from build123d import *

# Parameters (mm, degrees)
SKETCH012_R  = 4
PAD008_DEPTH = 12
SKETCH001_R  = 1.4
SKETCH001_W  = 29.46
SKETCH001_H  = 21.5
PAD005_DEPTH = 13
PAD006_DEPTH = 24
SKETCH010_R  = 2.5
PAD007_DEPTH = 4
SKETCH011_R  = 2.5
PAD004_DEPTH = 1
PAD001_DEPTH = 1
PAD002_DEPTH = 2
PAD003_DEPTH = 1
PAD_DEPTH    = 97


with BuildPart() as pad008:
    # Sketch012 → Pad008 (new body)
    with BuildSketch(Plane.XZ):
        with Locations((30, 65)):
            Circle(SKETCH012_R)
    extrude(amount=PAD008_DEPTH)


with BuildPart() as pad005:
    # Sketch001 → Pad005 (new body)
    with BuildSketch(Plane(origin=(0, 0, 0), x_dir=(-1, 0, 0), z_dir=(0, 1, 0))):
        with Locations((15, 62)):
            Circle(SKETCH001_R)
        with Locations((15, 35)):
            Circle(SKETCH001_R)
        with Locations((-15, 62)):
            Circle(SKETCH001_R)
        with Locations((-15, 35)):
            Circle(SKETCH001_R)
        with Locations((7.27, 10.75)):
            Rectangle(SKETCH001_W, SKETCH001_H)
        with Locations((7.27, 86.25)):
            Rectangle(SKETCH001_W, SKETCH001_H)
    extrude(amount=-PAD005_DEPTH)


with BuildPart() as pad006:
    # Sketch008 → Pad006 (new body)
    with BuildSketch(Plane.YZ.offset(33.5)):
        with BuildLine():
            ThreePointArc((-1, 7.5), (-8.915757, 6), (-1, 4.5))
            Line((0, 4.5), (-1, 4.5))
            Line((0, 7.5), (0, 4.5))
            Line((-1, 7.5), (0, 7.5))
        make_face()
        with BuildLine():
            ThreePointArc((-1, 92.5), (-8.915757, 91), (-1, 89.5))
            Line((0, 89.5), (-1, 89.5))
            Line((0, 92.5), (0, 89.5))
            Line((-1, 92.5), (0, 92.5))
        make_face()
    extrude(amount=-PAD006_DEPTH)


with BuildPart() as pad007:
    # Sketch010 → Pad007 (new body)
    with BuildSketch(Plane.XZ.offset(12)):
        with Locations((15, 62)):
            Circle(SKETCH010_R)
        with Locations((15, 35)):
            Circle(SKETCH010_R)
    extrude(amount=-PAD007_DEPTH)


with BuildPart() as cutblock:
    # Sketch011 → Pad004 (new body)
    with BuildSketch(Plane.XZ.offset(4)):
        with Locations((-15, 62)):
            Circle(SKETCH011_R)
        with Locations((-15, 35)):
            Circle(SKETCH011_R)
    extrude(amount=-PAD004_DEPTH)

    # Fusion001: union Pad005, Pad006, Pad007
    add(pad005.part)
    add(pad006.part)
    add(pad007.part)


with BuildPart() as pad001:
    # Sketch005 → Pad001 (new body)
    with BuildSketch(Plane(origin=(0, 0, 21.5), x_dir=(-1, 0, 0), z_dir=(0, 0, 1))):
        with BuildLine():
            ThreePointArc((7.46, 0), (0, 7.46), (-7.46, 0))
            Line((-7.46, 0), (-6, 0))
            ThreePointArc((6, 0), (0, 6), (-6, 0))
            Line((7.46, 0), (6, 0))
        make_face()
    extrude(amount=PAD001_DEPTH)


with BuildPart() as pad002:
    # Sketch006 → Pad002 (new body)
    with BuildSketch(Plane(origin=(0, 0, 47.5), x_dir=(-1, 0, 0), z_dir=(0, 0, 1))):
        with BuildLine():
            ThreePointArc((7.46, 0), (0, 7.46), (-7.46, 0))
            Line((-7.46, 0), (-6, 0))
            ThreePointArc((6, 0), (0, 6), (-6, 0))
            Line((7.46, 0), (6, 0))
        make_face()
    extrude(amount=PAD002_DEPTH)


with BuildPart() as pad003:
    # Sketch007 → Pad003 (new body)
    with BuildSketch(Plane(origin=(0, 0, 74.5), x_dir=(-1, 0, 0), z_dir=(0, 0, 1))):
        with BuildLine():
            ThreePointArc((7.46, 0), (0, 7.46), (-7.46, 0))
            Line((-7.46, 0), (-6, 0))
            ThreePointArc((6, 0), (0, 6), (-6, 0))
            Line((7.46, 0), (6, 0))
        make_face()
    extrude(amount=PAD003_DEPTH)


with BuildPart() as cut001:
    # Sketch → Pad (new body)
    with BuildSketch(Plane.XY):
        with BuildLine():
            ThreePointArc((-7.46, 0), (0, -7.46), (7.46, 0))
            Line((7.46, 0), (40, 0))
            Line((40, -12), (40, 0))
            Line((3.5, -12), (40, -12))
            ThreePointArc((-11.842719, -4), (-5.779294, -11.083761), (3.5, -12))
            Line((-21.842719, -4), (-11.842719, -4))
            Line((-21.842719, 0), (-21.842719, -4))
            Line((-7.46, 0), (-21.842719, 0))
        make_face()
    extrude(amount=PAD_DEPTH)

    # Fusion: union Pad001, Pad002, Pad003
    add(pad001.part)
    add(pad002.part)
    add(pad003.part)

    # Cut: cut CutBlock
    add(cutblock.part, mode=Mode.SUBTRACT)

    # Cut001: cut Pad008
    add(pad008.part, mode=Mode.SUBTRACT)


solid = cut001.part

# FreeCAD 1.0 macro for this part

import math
import FreeCAD as App
import Part
import Sketcher
from FreeCAD import Vector

doc = App.newDocument("Part")
body = doc.addObject("PartDesign::Body", "Body")

sketch1 = body.newObject("Sketcher::SketchObject", "Sketch")
sketch1.AttachmentSupport = (doc.getObject("XZ_Plane"), [""])
sketch1.MapMode = "FlatFace"
sketch1.addGeometry(Part.Circle(Vector(30, 65, 0), Vector(0, 0, 1), 4), False)
sketch1.addConstraint([
    Sketcher.Constraint("Diameter", 0, 8.0),
    Sketcher.Constraint("DistanceX", -1, 1, 0, 3, 30.0),
    Sketcher.Constraint("DistanceY", -1, 1, 0, 3, 65.0),
])
pad1 = body.newObject("PartDesign::Pad", "Pad")
pad1.Profile = sketch1
pad1.Length = 12
body2 = doc.addObject("PartDesign::Body", "Body001")
body2.AllowCompound = True

sketch2 = body2.newObject("Sketcher::SketchObject", "Sketch001")
sketch2.AttachmentSupport = (doc.getObject("XZ_Plane001"), [""])
sketch2.MapMode = "FlatFace"
sketch2.addGeometry([
    Part.Circle(Vector(-15, 62, 0), Vector(0, 0, 1), 1.4),
    Part.Circle(Vector(-15, 35, 0), Vector(0, 0, 1), 1.4),
    Part.Circle(Vector(15, 62, 0), Vector(0, 0, 1), 1.4),
    Part.Circle(Vector(15, 35, 0), Vector(0, 0, 1), 1.4),
    Part.LineSegment(Vector(7.5, 21.5, 0), Vector(7.5, 0, 0)),
    Part.LineSegment(Vector(7.5, 0, 0), Vector(-22, 0, 0)),
    Part.LineSegment(Vector(-22, 0, 0), Vector(-22, 21.5, 0)),
    Part.LineSegment(Vector(-22, 21.5, 0), Vector(7.5, 21.5, 0)),
    Part.LineSegment(Vector(7.5, 97, 0), Vector(7.5, 75.5, 0)),
    Part.LineSegment(Vector(7.5, 75.5, 0), Vector(-22, 75.5, 0)),
    Part.LineSegment(Vector(-22, 75.5, 0), Vector(-22, 97, 0)),
    Part.LineSegment(Vector(-22, 97, 0), Vector(7.5, 97, 0)),
], False)
sketch2.addConstraint([
    Sketcher.Constraint("Coincident", 4, 2, 5, 1),
    Sketcher.Constraint("Coincident", 5, 2, 6, 1),
    Sketcher.Constraint("Coincident", 6, 2, 7, 1),
    Sketcher.Constraint("Coincident", 7, 2, 4, 1),
    Sketcher.Constraint("Coincident", 8, 2, 9, 1),
    Sketcher.Constraint("Coincident", 9, 2, 10, 1),
    Sketcher.Constraint("Coincident", 10, 2, 11, 1),
    Sketcher.Constraint("Coincident", 11, 2, 8, 1),
    Sketcher.Constraint("Vertical", 4),
    Sketcher.Constraint("Horizontal", 5),
    Sketcher.Constraint("Vertical", 6),
    Sketcher.Constraint("Horizontal", 7),
    Sketcher.Constraint("Vertical", 8),
    Sketcher.Constraint("Horizontal", 9),
    Sketcher.Constraint("Vertical", 10),
    Sketcher.Constraint("Horizontal", 11),
    Sketcher.Constraint("Equal", 0, 1),
    Sketcher.Constraint("Equal", 1, 2),
    Sketcher.Constraint("Equal", 2, 3),
    Sketcher.Constraint("Symmetric", 0, 3, 2, 3, -2),
    Sketcher.Constraint("Symmetric", 1, 3, 3, 3, -2),
    Sketcher.Constraint("PointOnObject", 4, 2, -1),
    Sketcher.Constraint("Vertical", 0, 3, 1, 3),
    Sketcher.Constraint("Vertical", 7, 2, 8, 2),
    Sketcher.Constraint("Vertical", 6, 2, 9, 2),
    Sketcher.Constraint("Equal", 6, 8),
    Sketcher.Constraint("Diameter", 0, 2.8),
    Sketcher.Constraint("DistanceY", 4, 2, 4, 1, 21.5),
    Sketcher.Constraint("DistanceX", 0, 3, -1, 1, 15.0),
    Sketcher.Constraint("DistanceY", -1, 1, 0, 3, 62.0),
    Sketcher.Constraint("DistanceY", -1, 1, 1, 3, 35.0),
    Sketcher.Constraint("DistanceX", 5, 2, -1, 1, 22.0),
    Sketcher.Constraint("DistanceY", -1, 1, 10, 2, 97.0),
    Sketcher.Constraint("DistanceX", 5, 2, 5, 1, 29.46),
])
pad2 = body2.newObject("PartDesign::Pad", "Pad001")
pad2.Profile = sketch2
pad2.Length = 13
body3 = doc.addObject("PartDesign::Body", "Body002")
body3.AllowCompound = True

sketch3 = body3.newObject("Sketcher::SketchObject", "Sketch002")
sketch3.AttachmentSupport = (doc.getObject("YZ_Plane002"), [""])
sketch3.MapMode = "FlatFace"
sketch3.AttachmentOffset = App.Placement(Vector(0, 0, 33.5), App.Rotation())
sketch3.addGeometry([
    Part.ArcOfCircle(Part.Circle(Vector(-4.8, 6, 0), Vector(0, 0, 1), 4.1), math.radians(21), math.radians(339)),
    Part.LineSegment(Vector(-1, 4.5, 0), Vector(0, 4.5, 0)),
    Part.LineSegment(Vector(0, 4.5, 0), Vector(0, 7.5, 0)),
    Part.LineSegment(Vector(0, 7.5, 0), Vector(-1, 7.5, 0)),
    Part.ArcOfCircle(Part.Circle(Vector(-4.8, 91, 0), Vector(0, 0, 1), 4.1), math.radians(21), math.radians(339)),
    Part.LineSegment(Vector(-1, 89.5, 0), Vector(0, 89.5, 0)),
    Part.LineSegment(Vector(0, 89.5, 0), Vector(0, 92.5, 0)),
    Part.LineSegment(Vector(0, 92.5, 0), Vector(-1, 92.5, 0)),
], False)
sketch3.addConstraint([
    Sketcher.Constraint("Coincident", 0, 2, 1, 1),
    Sketcher.Constraint("Coincident", 1, 2, 2, 1),
    Sketcher.Constraint("Coincident", 2, 2, 3, 1),
    Sketcher.Constraint("Coincident", 3, 2, 0, 1),
    Sketcher.Constraint("Coincident", 4, 2, 5, 1),
    Sketcher.Constraint("Coincident", 5, 2, 6, 1),
    Sketcher.Constraint("Coincident", 6, 2, 7, 1),
    Sketcher.Constraint("Coincident", 7, 2, 4, 1),
    Sketcher.Constraint("Horizontal", 1),
    Sketcher.Constraint("Vertical", 2),
    Sketcher.Constraint("Horizontal", 3),
    Sketcher.Constraint("Horizontal", 5),
    Sketcher.Constraint("Vertical", 6),
    Sketcher.Constraint("Horizontal", 7),
    Sketcher.Constraint("Equal", 0, 4),
    Sketcher.Constraint("PointOnObject", 1, 2, -2),
    Sketcher.Constraint("PointOnObject", 5, 2, -2),
    Sketcher.Constraint("Vertical", 0, 3, 4, 3),
    Sketcher.Constraint("Vertical", 0, 2, 3, 2),
    Sketcher.Constraint("Vertical", 3, 2, 4, 2),
    Sketcher.Constraint("Vertical", 4, 2, 7, 2),
    Sketcher.Constraint("Radius", 0, 4.1),
    Sketcher.Constraint("DistanceX", 1, 1, 1, 2, 1.0),
    Sketcher.Constraint("DistanceY", 2, 1, 2, 2, 3.0),
    Sketcher.Constraint("DistanceY", -1, 1, 0, 3, 6.0),
    Sketcher.Constraint("DistanceY", -1, 1, 4, 3, 91.0),
])
pad3 = body3.newObject("PartDesign::Pad", "Pad002")
pad3.Profile = sketch3
pad3.Length = 24
pad3.Reversed = True
body4 = doc.addObject("PartDesign::Body", "Body003")
body4.AllowCompound = True

sketch4 = body4.newObject("Sketcher::SketchObject", "Sketch003")
sketch4.AttachmentSupport = (doc.getObject("XZ_Plane003"), [""])
sketch4.MapMode = "FlatFace"
sketch4.AttachmentOffset = App.Placement(Vector(0, 0, 12), App.Rotation())
sketch4.addGeometry([
    Part.Circle(Vector(15, 62, 0), Vector(0, 0, 1), 2.5),
    Part.Circle(Vector(15, 35, 0), Vector(0, 0, 1), 2.5),
], False)
sketch4.addConstraint([
    Sketcher.Constraint("Equal", 0, 1),
    Sketcher.Constraint("Vertical", 0, 3, 1, 3),
    Sketcher.Constraint("Diameter", 0, 5.0),
    Sketcher.Constraint("DistanceX", -1, 1, 0, 3, 15.0),
    Sketcher.Constraint("DistanceY", -1, 1, 0, 3, 62.0),
    Sketcher.Constraint("DistanceY", -1, 1, 1, 3, 35.0),
])
pad4 = body4.newObject("PartDesign::Pad", "Pad003")
pad4.Profile = sketch4
pad4.Length = 4
pad4.Reversed = True
body5 = doc.addObject("PartDesign::Body", "Body004")
body5.AllowCompound = True

sketch5 = body5.newObject("Sketcher::SketchObject", "Sketch004")
sketch5.AttachmentSupport = (doc.getObject("XZ_Plane004"), [""])
sketch5.MapMode = "FlatFace"
sketch5.AttachmentOffset = App.Placement(Vector(0, 0, 4), App.Rotation())
sketch5.addGeometry([
    Part.Circle(Vector(-15, 62, 0), Vector(0, 0, 1), 2.5),
    Part.Circle(Vector(-15, 35, 0), Vector(0, 0, 1), 2.5),
], False)
sketch5.addConstraint([
    Sketcher.Constraint("Equal", 0, 1),
    Sketcher.Constraint("Vertical", 0, 3, 1, 3),
    Sketcher.Constraint("Diameter", 0, 5.0),
    Sketcher.Constraint("DistanceX", 0, 3, -1, 1, 15.0),
    Sketcher.Constraint("DistanceY", -1, 1, 0, 3, 62.0),
    Sketcher.Constraint("DistanceY", -1, 1, 1, 3, 35.0),
])
pad5 = body5.newObject("PartDesign::Pad", "Pad004")
pad5.Profile = sketch5
pad5.Length = 1
pad5.Reversed = True
doc.recompute()

boolean = body5.newObject("PartDesign::Boolean", "Boolean")
boolean.Type = "Fuse"
boolean.addObjects([body2])
doc.recompute()

boolean2 = body5.newObject("PartDesign::Boolean", "Boolean001")
boolean2.Type = "Fuse"
boolean2.addObjects([body3])
doc.recompute()

boolean3 = body5.newObject("PartDesign::Boolean", "Boolean002")
boolean3.Type = "Fuse"
boolean3.addObjects([body4])
body6 = doc.addObject("PartDesign::Body", "Body005")

sketch6 = body6.newObject("Sketcher::SketchObject", "Sketch005")
sketch6.AttachmentSupport = (doc.getObject("XY_Plane005"), [""])
sketch6.MapMode = "FlatFace"
sketch6.AttachmentOffset = App.Placement(Vector(0, 0, 21.5), App.Rotation())
sketch6.addGeometry([
    Part.ArcOfCircle(Part.Circle(Vector(0, 0, 0), Vector(0, 0, 1), 7.5), math.radians(180), math.radians(360)),
    Part.LineSegment(Vector(7.5, 0, 0), Vector(6, 0, 0)),
    Part.ArcOfCircle(Part.Circle(Vector(0, 0, 0), Vector(0, 0, 1), 6), math.radians(180), math.radians(360)),
    Part.LineSegment(Vector(-6, 0, 0), Vector(-7.5, 0, 0)),
], False)
sketch6.addConstraint([
    Sketcher.Constraint("Coincident", 0, 2, 1, 1),
    Sketcher.Constraint("Coincident", 1, 2, 2, 2),
    Sketcher.Constraint("Coincident", 2, 1, 3, 1),
    Sketcher.Constraint("Coincident", 3, 2, 0, 1),
    Sketcher.Constraint("Horizontal", 1),
    Sketcher.Constraint("Horizontal", 3),
    Sketcher.Constraint("Coincident", 0, 3, -1, 1),
    Sketcher.Constraint("Coincident", 2, 3, -1, 1),
    Sketcher.Constraint("PointOnObject", 0, 2, -1),
    Sketcher.Constraint("PointOnObject", 2, 1, -1),
    Sketcher.Constraint("Radius", 2, 6.0),
    Sketcher.Constraint("Radius", 0, 7.46),
])
pad6 = body6.newObject("PartDesign::Pad", "Pad005")
pad6.Profile = sketch6
pad6.Length = 1
body7 = doc.addObject("PartDesign::Body", "Body006")

sketch7 = body7.newObject("Sketcher::SketchObject", "Sketch006")
sketch7.AttachmentSupport = (doc.getObject("XY_Plane006"), [""])
sketch7.MapMode = "FlatFace"
sketch7.AttachmentOffset = App.Placement(Vector(0, 0, 47.5), App.Rotation())
sketch7.addGeometry([
    Part.ArcOfCircle(Part.Circle(Vector(0, 0, 0), Vector(0, 0, 1), 7.5), math.radians(180), math.radians(360)),
    Part.LineSegment(Vector(7.5, 0, 0), Vector(6, 0, 0)),
    Part.ArcOfCircle(Part.Circle(Vector(0, 0, 0), Vector(0, 0, 1), 6), math.radians(180), math.radians(360)),
    Part.LineSegment(Vector(-6, 0, 0), Vector(-7.5, 0, 0)),
], False)
sketch7.addConstraint([
    Sketcher.Constraint("Coincident", 0, 2, 1, 1),
    Sketcher.Constraint("Coincident", 1, 2, 2, 2),
    Sketcher.Constraint("Coincident", 2, 1, 3, 1),
    Sketcher.Constraint("Coincident", 3, 2, 0, 1),
    Sketcher.Constraint("Horizontal", 1),
    Sketcher.Constraint("Horizontal", 3),
    Sketcher.Constraint("Coincident", 0, 3, -1, 1),
    Sketcher.Constraint("Coincident", 2, 3, -1, 1),
    Sketcher.Constraint("PointOnObject", 0, 2, -1),
    Sketcher.Constraint("PointOnObject", 2, 1, -1),
    Sketcher.Constraint("Radius", 2, 6.0),
    Sketcher.Constraint("Radius", 0, 7.46),
])
pad7 = body7.newObject("PartDesign::Pad", "Pad006")
pad7.Profile = sketch7
pad7.Length = 2
body8 = doc.addObject("PartDesign::Body", "Body007")

sketch8 = body8.newObject("Sketcher::SketchObject", "Sketch007")
sketch8.AttachmentSupport = (doc.getObject("XY_Plane007"), [""])
sketch8.MapMode = "FlatFace"
sketch8.AttachmentOffset = App.Placement(Vector(0, 0, 74.5), App.Rotation())
sketch8.addGeometry([
    Part.ArcOfCircle(Part.Circle(Vector(0, 0, 0), Vector(0, 0, 1), 7.5), math.radians(180), math.radians(360)),
    Part.LineSegment(Vector(7.5, 0, 0), Vector(6, 0, 0)),
    Part.ArcOfCircle(Part.Circle(Vector(0, 0, 0), Vector(0, 0, 1), 6), math.radians(180), math.radians(360)),
    Part.LineSegment(Vector(-6, 0, 0), Vector(-7.5, 0, 0)),
], False)
sketch8.addConstraint([
    Sketcher.Constraint("Coincident", 0, 2, 1, 1),
    Sketcher.Constraint("Coincident", 1, 2, 2, 2),
    Sketcher.Constraint("Coincident", 2, 1, 3, 1),
    Sketcher.Constraint("Coincident", 3, 2, 0, 1),
    Sketcher.Constraint("Horizontal", 1),
    Sketcher.Constraint("Horizontal", 3),
    Sketcher.Constraint("Coincident", 0, 3, -1, 1),
    Sketcher.Constraint("Coincident", 2, 3, -1, 1),
    Sketcher.Constraint("PointOnObject", 0, 2, -1),
    Sketcher.Constraint("PointOnObject", 2, 1, -1),
    Sketcher.Constraint("Radius", 2, 6.0),
    Sketcher.Constraint("Radius", 0, 7.46),
])
pad8 = body8.newObject("PartDesign::Pad", "Pad007")
pad8.Profile = sketch8
pad8.Length = 1
body9 = doc.addObject("PartDesign::Body", "Body008")

sketch9 = body9.newObject("Sketcher::SketchObject", "Sketch008")
sketch9.AttachmentSupport = (doc.getObject("XY_Plane008"), [""])
sketch9.MapMode = "FlatFace"
sketch9.addGeometry([
    Part.ArcOfCircle(Part.Circle(Vector(0, 0, 0), Vector(0, 0, 1), 7.5), math.radians(180), math.radians(360)),
    Part.LineSegment(Vector(-7.5, 0, 0), Vector(-21.8, 0, 0)),
    Part.LineSegment(Vector(-21.8, 0, 0), Vector(-21.8, -4, 0)),
    Part.LineSegment(Vector(-21.8, -4, 0), Vector(-11.8, -4, 0)),
    Part.ArcOfCircle(Part.Circle(Vector(0, 0, 0), Vector(0, 0, 1), 12.5), math.radians(-161), math.radians(-74)),
    Part.LineSegment(Vector(3.5, -12, 0), Vector(40, -12, 0)),
    Part.LineSegment(Vector(40, -12, 0), Vector(40, 0, 0)),
    Part.LineSegment(Vector(40, 0, 0), Vector(7.5, 0, 0)),
], False)
sketch9.addConstraint([
    Sketcher.Constraint("Coincident", 0, 1, 1, 1),
    Sketcher.Constraint("Coincident", 1, 2, 2, 1),
    Sketcher.Constraint("Coincident", 2, 2, 3, 1),
    Sketcher.Constraint("Coincident", 3, 2, 4, 1),
    Sketcher.Constraint("Coincident", 4, 2, 5, 1),
    Sketcher.Constraint("Coincident", 5, 2, 6, 1),
    Sketcher.Constraint("Coincident", 6, 2, 7, 1),
    Sketcher.Constraint("Coincident", 7, 2, 0, 2),
    Sketcher.Constraint("Horizontal", 1),
    Sketcher.Constraint("Vertical", 2),
    Sketcher.Constraint("Horizontal", 3),
    Sketcher.Constraint("Horizontal", 5),
    Sketcher.Constraint("Vertical", 6),
    Sketcher.Constraint("Horizontal", 7),
    Sketcher.Constraint("Coincident", 0, 3, -1, 1),
    Sketcher.Constraint("Coincident", 4, 3, -1, 1),
    Sketcher.Constraint("PointOnObject", 0, 1, -1),
    Sketcher.Constraint("PointOnObject", 6, 2, -1),
    Sketcher.Constraint("Radius", 4, 12.5),
    Sketcher.Constraint("DistanceX", 3, 1, 3, 2, 10.0),
    Sketcher.Constraint("DistanceY", 2, 2, 2, 1, 4.0),
    Sketcher.Constraint("DistanceY", 6, 1, 6, 2, 12.0),
    Sketcher.Constraint("Radius", 0, 7.46),
    Sketcher.Constraint("DistanceX", 5, 1, 5, 2, 36.5),
])
pad9 = body9.newObject("PartDesign::Pad", "Pad008")
pad9.Profile = sketch9
pad9.Length = 97
doc.recompute()

boolean4 = body9.newObject("PartDesign::Boolean", "Boolean003")
boolean4.Type = "Fuse"
boolean4.addObjects([body6])
doc.recompute()

boolean5 = body9.newObject("PartDesign::Boolean", "Boolean004")
boolean5.Type = "Fuse"
boolean5.addObjects([body7])
doc.recompute()

boolean6 = body9.newObject("PartDesign::Boolean", "Boolean005")
boolean6.Type = "Fuse"
boolean6.addObjects([body8])
doc.recompute()

boolean7 = body9.newObject("PartDesign::Boolean", "Boolean006")
boolean7.Type = "Cut"
boolean7.addObjects([body5])
doc.recompute()

boolean8 = body9.newObject("PartDesign::Boolean", "Boolean007")
boolean8.Type = "Cut"
boolean8.addObjects([body])

doc.recompute()
